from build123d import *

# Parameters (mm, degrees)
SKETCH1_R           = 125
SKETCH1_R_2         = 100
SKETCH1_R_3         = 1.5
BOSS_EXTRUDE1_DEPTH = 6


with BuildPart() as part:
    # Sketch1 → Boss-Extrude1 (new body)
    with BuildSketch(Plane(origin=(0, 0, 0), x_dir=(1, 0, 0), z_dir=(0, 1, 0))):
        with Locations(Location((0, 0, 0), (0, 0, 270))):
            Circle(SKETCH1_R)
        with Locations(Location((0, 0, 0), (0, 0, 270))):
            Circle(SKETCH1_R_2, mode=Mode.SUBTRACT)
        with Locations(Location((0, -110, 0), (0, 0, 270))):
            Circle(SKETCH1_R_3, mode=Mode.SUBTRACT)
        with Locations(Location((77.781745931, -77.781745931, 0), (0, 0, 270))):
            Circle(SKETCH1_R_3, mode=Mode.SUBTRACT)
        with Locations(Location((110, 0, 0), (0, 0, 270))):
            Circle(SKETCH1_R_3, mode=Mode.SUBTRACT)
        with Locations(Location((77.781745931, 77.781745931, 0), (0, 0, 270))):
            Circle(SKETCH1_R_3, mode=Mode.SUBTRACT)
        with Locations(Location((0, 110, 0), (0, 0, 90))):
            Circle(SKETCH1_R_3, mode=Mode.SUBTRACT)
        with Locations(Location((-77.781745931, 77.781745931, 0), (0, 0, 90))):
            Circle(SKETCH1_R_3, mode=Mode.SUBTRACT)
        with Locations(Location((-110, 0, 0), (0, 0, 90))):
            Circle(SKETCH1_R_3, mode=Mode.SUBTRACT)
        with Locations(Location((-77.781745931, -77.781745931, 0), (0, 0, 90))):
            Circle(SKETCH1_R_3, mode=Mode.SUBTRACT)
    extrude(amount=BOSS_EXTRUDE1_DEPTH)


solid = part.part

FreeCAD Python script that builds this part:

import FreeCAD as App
import Part
import Sketcher

doc = App.newDocument("Part")
body = doc.addObject("PartDesign::Body", "Body")

# Sketch on XZ plane
sketch1 = body.newObject("Sketcher::SketchObject", "Sketch")
sketch1.AttachmentSupport = (doc.getObject("XZ_Plane"), [""])
sketch1.MapMode = "FlatFace"
sketch1.addGeometry(Part.Circle(App.Vector(0, 0, 0), App.Vector(0, 0, 1), 125), False)
sketch1.addGeometry(Part.Circle(App.Vector(-77.8, -77.8, 0), App.Vector(0, 0, 1), 1.5), False)
sketch1.addGeometry(Part.Circle(App.Vector(0, -110, 0), App.Vector(0, 0, 1), 1.5), False)
sketch1.addGeometry(Part.Circle(App.Vector(-110, 0, 0), App.Vector(0, 0, 1), 1.5), False)
sketch1.addGeometry(Part.Circle(App.Vector(-77.8, 77.8, 0), App.Vector(0, 0, 1), 1.5), False)
sketch1.addGeometry(Part.Circle(App.Vector(77.8, -77.8, 0), App.Vector(0, 0, 1), 1.5), False)
sketch1.addGeometry(Part.Circle(App.Vector(110, 0, 0), App.Vector(0, 0, 1), 1.5), False)
sketch1.addGeometry(Part.Circle(App.Vector(0, 0, 0), App.Vector(0, 0, 1), 100), False)
sketch1.addGeometry(Part.Circle(App.Vector(0, 110, 0), App.Vector(0, 0, 1), 1.5), False)
sketch1.addGeometry(Part.Circle(App.Vector(77.8, 77.8, 0), App.Vector(0, 0, 1), 1.5), False)
sketch1.addConstraint(Sketcher.Constraint("Coincident", 0, 3, -1, 1))
sketch1.addConstraint(Sketcher.Constraint("Coincident", 7, 3, -1, 1))
sketch1.addConstraint(Sketcher.Constraint("Equal", 1, 2))
sketch1.addConstraint(Sketcher.Constraint("Equal", 2, 3))
sketch1.addConstraint(Sketcher.Constraint("Equal", 3, 4))
sketch1.addConstraint(Sketcher.Constraint("Equal", 4, 5))
sketch1.addConstraint(Sketcher.Constraint("Equal", 5, 6))
sketch1.addConstraint(Sketcher.Constraint("Equal", 6, 8))
sketch1.addConstraint(Sketcher.Constraint("Equal", 8, 9))
sketch1.addConstraint(Sketcher.Constraint("Symmetric", 4, 3, 5, 3, -1, 1))
sketch1.addConstraint(Sketcher.Constraint("Symmetric", 3, 3, 6, 3, -1, 1))
sketch1.addConstraint(Sketcher.Constraint("Symmetric", 2, 3, 8, 3, -1, 1))
sketch1.addConstraint(Sketcher.Constraint("Symmetric", 1, 3, 9, 3, -1, 1))
sketch1.addConstraint(Sketcher.Constraint("Symmetric", 1, 3, 5, 3, -2))
sketch1.addConstraint(Sketcher.Constraint("PointOnObject", 2, 3, -2))
sketch1.addConstraint(Sketcher.Constraint("PointOnObject", 3, 3, -1))
sketch1.addConstraint(Sketcher.Constraint("Diameter", 0, 250.0))
sketch1.addConstraint(Sketcher.Constraint("Diameter", 1, 3.0))
sketch1.addConstraint(Sketcher.Constraint("Diameter", 7, 200.0))
sketch1.addConstraint(Sketcher.Constraint("DistanceY", 2, 3, -1, 1, 110.0))
sketch1.addConstraint(Sketcher.Constraint("DistanceX", 3, 3, -1, 1, 110.0))
sketch1.addConstraint(Sketcher.Constraint("DistanceY", 1, 3, 4, 3, 155.563492))
sketch1.addConstraint(Sketcher.Constraint("DistanceX", 1, 3, 5, 3, 155.563492))
pad1 = body.newObject("PartDesign::Pad", "Pad")
pad1.Profile = sketch1
pad1.Length = 6
pad1.Reversed = True

doc.recompute()
